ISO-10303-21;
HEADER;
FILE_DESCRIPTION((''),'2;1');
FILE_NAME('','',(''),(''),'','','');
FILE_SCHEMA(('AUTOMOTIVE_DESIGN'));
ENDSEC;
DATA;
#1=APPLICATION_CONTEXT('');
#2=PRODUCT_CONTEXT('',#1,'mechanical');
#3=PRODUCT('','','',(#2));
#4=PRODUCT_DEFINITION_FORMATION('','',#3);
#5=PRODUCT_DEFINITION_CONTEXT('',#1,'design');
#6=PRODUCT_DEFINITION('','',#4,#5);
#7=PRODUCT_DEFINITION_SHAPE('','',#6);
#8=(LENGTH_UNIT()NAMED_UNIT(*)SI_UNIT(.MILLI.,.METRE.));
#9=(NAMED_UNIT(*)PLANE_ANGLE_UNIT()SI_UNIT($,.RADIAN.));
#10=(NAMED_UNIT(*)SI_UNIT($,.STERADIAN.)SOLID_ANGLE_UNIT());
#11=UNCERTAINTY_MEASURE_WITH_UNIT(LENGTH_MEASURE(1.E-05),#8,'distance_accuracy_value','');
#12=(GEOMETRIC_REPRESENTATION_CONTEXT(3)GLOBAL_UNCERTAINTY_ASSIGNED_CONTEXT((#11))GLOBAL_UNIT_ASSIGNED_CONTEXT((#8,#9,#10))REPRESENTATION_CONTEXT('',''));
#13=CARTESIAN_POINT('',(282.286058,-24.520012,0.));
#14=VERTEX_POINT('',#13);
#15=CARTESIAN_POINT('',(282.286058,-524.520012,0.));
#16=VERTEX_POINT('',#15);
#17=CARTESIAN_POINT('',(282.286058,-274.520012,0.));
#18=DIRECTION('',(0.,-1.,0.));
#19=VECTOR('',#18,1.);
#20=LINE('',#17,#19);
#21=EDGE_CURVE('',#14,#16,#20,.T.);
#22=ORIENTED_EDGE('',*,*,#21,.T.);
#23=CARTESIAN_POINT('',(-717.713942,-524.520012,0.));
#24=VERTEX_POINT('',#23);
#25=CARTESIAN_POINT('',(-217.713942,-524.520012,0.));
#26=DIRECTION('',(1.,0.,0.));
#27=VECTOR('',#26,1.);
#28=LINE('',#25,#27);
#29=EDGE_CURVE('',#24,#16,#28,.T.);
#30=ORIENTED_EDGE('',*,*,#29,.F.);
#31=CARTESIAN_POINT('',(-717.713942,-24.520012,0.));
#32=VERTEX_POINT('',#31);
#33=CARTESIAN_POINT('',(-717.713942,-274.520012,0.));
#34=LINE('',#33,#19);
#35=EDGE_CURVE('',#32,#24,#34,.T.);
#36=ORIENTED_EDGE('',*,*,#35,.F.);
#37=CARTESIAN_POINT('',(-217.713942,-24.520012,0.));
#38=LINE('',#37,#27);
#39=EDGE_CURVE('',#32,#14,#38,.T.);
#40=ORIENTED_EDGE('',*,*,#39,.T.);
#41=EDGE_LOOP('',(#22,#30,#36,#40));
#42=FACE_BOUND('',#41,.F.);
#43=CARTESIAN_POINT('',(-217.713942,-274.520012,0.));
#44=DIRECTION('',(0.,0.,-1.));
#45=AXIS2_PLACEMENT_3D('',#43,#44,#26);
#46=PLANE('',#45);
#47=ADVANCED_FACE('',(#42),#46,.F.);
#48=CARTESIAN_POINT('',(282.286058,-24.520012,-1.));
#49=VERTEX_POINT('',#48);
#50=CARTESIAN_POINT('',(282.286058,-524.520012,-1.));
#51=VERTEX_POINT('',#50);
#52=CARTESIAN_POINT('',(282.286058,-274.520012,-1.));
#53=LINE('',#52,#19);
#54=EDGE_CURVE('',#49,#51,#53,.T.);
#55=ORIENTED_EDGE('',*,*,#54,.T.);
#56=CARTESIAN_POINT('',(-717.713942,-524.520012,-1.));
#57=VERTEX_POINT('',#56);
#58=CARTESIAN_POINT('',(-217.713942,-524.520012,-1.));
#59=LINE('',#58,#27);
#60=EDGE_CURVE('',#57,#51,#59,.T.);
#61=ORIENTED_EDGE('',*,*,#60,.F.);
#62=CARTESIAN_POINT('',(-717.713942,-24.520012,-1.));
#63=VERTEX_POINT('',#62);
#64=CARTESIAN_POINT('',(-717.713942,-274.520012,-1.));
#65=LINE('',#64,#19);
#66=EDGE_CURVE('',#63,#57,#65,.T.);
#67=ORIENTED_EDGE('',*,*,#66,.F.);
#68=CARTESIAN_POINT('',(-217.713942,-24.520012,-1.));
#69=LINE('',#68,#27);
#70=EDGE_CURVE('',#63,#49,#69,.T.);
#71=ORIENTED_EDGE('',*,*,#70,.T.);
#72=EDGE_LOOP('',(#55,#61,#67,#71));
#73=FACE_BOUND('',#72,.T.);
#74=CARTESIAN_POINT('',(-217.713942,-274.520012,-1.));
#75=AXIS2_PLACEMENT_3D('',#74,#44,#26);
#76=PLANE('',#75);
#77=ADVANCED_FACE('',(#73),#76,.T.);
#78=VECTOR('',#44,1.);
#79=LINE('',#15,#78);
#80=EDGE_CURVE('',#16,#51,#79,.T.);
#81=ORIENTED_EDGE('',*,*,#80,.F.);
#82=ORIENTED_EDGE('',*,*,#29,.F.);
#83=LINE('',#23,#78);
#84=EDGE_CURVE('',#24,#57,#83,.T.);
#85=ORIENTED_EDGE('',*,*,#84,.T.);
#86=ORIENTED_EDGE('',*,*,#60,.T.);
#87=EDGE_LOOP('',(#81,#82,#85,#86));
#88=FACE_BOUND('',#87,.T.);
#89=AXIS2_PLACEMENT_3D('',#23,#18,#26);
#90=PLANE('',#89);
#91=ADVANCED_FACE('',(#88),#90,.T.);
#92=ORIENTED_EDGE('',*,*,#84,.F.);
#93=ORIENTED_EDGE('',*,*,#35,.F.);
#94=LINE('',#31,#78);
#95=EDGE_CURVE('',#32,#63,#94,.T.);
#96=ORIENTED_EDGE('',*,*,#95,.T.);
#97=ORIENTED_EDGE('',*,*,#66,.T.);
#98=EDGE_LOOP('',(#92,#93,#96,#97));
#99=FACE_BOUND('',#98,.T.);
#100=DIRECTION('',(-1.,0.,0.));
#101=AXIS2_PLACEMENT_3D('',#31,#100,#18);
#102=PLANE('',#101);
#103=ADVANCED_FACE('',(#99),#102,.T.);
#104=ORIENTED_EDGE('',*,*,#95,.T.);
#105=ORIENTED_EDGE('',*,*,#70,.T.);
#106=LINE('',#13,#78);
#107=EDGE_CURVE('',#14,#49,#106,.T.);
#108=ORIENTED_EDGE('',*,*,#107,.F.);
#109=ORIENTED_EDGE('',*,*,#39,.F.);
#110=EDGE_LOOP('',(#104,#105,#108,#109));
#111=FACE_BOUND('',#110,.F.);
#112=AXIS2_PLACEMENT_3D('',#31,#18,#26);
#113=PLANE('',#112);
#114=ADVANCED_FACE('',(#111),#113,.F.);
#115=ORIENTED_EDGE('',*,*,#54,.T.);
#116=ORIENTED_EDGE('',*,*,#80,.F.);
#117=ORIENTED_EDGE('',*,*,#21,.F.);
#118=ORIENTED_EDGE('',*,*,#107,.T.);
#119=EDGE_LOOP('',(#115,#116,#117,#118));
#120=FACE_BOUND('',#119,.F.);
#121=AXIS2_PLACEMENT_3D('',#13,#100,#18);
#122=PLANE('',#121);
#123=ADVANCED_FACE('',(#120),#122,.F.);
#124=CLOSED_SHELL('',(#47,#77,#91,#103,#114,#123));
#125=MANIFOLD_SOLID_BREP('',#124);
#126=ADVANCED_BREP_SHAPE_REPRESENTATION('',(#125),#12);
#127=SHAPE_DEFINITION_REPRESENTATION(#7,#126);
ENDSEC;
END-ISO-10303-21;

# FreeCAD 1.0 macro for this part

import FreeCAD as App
import Part
import Sketcher
from FreeCAD import Vector
Q = App.Units.Quantity


def add_polygon(sketch, points):
    """Adds a closed chain of lines whose ends are joined by coincident constraints."""
    first, n = sketch.GeometryCount, len(points)
    for a, b in zip(points, points[1:] + points[:1]):
        sketch.addGeometry(Part.LineSegment(App.Vector(*a, 0), App.Vector(*b, 0)), False)
    for i in range(n):
        sketch.addConstraint(Sketcher.Constraint("Coincident", first + i, 2, first + (i + 1) % n, 1))

doc = App.newDocument("Part")
body = doc.addObject("PartDesign::Body", "Body")

sketch1 = body.newObject("Sketcher::SketchObject", "Sketch")
sketch1.AttachmentSupport = (doc.getObject("XY_Plane"), [""])
sketch1.MapMode = "FlatFace"
add_polygon(sketch1, [(-718, -525), (-718, -25), (282, -25), (282, -525)])
sketch1.addConstraint([
    Sketcher.Constraint("Vertical", 0),
    Sketcher.Constraint("Horizontal", 1),
    Sketcher.Constraint("Vertical", 2),
    Sketcher.Constraint("Horizontal", 3),
    Sketcher.Constraint("DistanceX", 1, 1, 1, 2, Q("1000 mm")),
    Sketcher.Constraint("DistanceY", 0, 1, 0, 2, Q("500 mm")),
    Sketcher.Constraint("DistanceX", 0, 2, -1, 1, Q("717.713942 mm")),
    Sketcher.Constraint("DistanceY", 2, 2, -1, 1, Q("524.520012 mm")),
])
pad1 = body.newObject("PartDesign::Pad", "Pad")
pad1.Profile = sketch1
pad1.Length = 1
pad1.Reversed = True

doc.recompute()
